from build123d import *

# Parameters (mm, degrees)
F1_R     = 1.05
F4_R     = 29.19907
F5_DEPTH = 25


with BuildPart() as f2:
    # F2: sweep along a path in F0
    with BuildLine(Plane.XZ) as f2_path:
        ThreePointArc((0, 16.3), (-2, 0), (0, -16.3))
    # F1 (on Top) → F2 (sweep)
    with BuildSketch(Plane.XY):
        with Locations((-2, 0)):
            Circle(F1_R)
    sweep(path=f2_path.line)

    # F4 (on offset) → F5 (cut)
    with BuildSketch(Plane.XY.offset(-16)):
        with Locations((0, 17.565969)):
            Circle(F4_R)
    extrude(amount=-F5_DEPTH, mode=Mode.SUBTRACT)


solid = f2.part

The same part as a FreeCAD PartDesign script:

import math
import FreeCAD as App
import Part
import Sketcher
from FreeCAD import Vector
Q = App.Units.Quantity

doc = App.newDocument("Part")
params = doc.addObject("Spreadsheet::Sheet", "Params")
for row, (alias, value) in enumerate([
    ("sketch1_diameter", "2.1 mm"),
    ("pocket1_length", "25 mm"),
], start=1):
    params.set(f"A{row}", alias)
    params.set(f"B{row}", "=" + value)
    params.setAlias(f"B{row}", alias)

body = doc.addObject("PartDesign::Body", "Body")

# Sketch on XY plane
sketch1 = body.newObject("Sketcher::SketchObject", "Sketch")
sketch1.AttachmentSupport = (doc.getObject("XY_Plane"), [""])
sketch1.MapMode = "FlatFace"
sketch1.addGeometry(Part.Circle(Vector(-2, 0, 0), Vector(0, 0, 1), 1.1), False)
sketch1.addConstraint([
    Sketcher.Constraint("PointOnObject", 0, 3, -1),
    Sketcher.Constraint("Diameter", 0, Q("2.1 mm")),
    Sketcher.Constraint("DistanceX", 0, 3, -1, 1, Q("2 mm")),
])
sketch1.setExpression("Constraints[1]", "Params.sketch1_diameter")

# Sketch on XZ plane
sketch2 = body.newObject("Sketcher::SketchObject", "Sketch001")
sketch2.AttachmentSupport = (doc.getObject("XZ_Plane"), [""])
sketch2.MapMode = "FlatFace"
sketch2.addGeometry(Part.ArcOfCircle(Part.Circle(Vector(65, 0, 0), Vector(0, 0, 1), 67), math.radians(166), math.radians(194)), False)
sketch2.addConstraint([
    Sketcher.Constraint("Symmetric", 0, 1, 0, 2, -1, 1),
    Sketcher.Constraint("PointOnObject", 0, 3, -1),
    Sketcher.Constraint("DistanceY", -1, 1, 0, 1, Q("16.3 mm")),
    Sketcher.Constraint("Radius", 0, Q("67.4225 mm")),
])
doc.recompute()

additivepipe = body.newObject("PartDesign::AdditivePipe", "AdditivePipe")
additivepipe.Profile = sketch1
additivepipe.Spine = (sketch2, ["Edge1"])

# Sketch on XY plane
sketch3 = body.newObject("Sketcher::SketchObject", "Sketch002")
sketch3.AttachmentSupport = (doc.getObject("XY_Plane"), [""])
sketch3.MapMode = "FlatFace"
sketch3.AttachmentOffset = App.Placement(Vector(0, 0, -16), App.Rotation())
sketch3.addGeometry(Part.Circle(Vector(0, 18, 0), Vector(0, 0, 1), 29), False)
sketch3.addConstraint([
    Sketcher.Constraint("PointOnObject", 0, 3, -2),
    Sketcher.Constraint("Diameter", 0, Q("58.39814 mm")),
    Sketcher.Constraint("DistanceY", -1, 1, 0, 3, Q("17.565969 mm")),
])
pocket1 = body.newObject("PartDesign::Pocket", "Pocket")
pocket1.Profile = sketch3
pocket1.setExpression("Length", "Params.pocket1_length")

doc.recompute()
